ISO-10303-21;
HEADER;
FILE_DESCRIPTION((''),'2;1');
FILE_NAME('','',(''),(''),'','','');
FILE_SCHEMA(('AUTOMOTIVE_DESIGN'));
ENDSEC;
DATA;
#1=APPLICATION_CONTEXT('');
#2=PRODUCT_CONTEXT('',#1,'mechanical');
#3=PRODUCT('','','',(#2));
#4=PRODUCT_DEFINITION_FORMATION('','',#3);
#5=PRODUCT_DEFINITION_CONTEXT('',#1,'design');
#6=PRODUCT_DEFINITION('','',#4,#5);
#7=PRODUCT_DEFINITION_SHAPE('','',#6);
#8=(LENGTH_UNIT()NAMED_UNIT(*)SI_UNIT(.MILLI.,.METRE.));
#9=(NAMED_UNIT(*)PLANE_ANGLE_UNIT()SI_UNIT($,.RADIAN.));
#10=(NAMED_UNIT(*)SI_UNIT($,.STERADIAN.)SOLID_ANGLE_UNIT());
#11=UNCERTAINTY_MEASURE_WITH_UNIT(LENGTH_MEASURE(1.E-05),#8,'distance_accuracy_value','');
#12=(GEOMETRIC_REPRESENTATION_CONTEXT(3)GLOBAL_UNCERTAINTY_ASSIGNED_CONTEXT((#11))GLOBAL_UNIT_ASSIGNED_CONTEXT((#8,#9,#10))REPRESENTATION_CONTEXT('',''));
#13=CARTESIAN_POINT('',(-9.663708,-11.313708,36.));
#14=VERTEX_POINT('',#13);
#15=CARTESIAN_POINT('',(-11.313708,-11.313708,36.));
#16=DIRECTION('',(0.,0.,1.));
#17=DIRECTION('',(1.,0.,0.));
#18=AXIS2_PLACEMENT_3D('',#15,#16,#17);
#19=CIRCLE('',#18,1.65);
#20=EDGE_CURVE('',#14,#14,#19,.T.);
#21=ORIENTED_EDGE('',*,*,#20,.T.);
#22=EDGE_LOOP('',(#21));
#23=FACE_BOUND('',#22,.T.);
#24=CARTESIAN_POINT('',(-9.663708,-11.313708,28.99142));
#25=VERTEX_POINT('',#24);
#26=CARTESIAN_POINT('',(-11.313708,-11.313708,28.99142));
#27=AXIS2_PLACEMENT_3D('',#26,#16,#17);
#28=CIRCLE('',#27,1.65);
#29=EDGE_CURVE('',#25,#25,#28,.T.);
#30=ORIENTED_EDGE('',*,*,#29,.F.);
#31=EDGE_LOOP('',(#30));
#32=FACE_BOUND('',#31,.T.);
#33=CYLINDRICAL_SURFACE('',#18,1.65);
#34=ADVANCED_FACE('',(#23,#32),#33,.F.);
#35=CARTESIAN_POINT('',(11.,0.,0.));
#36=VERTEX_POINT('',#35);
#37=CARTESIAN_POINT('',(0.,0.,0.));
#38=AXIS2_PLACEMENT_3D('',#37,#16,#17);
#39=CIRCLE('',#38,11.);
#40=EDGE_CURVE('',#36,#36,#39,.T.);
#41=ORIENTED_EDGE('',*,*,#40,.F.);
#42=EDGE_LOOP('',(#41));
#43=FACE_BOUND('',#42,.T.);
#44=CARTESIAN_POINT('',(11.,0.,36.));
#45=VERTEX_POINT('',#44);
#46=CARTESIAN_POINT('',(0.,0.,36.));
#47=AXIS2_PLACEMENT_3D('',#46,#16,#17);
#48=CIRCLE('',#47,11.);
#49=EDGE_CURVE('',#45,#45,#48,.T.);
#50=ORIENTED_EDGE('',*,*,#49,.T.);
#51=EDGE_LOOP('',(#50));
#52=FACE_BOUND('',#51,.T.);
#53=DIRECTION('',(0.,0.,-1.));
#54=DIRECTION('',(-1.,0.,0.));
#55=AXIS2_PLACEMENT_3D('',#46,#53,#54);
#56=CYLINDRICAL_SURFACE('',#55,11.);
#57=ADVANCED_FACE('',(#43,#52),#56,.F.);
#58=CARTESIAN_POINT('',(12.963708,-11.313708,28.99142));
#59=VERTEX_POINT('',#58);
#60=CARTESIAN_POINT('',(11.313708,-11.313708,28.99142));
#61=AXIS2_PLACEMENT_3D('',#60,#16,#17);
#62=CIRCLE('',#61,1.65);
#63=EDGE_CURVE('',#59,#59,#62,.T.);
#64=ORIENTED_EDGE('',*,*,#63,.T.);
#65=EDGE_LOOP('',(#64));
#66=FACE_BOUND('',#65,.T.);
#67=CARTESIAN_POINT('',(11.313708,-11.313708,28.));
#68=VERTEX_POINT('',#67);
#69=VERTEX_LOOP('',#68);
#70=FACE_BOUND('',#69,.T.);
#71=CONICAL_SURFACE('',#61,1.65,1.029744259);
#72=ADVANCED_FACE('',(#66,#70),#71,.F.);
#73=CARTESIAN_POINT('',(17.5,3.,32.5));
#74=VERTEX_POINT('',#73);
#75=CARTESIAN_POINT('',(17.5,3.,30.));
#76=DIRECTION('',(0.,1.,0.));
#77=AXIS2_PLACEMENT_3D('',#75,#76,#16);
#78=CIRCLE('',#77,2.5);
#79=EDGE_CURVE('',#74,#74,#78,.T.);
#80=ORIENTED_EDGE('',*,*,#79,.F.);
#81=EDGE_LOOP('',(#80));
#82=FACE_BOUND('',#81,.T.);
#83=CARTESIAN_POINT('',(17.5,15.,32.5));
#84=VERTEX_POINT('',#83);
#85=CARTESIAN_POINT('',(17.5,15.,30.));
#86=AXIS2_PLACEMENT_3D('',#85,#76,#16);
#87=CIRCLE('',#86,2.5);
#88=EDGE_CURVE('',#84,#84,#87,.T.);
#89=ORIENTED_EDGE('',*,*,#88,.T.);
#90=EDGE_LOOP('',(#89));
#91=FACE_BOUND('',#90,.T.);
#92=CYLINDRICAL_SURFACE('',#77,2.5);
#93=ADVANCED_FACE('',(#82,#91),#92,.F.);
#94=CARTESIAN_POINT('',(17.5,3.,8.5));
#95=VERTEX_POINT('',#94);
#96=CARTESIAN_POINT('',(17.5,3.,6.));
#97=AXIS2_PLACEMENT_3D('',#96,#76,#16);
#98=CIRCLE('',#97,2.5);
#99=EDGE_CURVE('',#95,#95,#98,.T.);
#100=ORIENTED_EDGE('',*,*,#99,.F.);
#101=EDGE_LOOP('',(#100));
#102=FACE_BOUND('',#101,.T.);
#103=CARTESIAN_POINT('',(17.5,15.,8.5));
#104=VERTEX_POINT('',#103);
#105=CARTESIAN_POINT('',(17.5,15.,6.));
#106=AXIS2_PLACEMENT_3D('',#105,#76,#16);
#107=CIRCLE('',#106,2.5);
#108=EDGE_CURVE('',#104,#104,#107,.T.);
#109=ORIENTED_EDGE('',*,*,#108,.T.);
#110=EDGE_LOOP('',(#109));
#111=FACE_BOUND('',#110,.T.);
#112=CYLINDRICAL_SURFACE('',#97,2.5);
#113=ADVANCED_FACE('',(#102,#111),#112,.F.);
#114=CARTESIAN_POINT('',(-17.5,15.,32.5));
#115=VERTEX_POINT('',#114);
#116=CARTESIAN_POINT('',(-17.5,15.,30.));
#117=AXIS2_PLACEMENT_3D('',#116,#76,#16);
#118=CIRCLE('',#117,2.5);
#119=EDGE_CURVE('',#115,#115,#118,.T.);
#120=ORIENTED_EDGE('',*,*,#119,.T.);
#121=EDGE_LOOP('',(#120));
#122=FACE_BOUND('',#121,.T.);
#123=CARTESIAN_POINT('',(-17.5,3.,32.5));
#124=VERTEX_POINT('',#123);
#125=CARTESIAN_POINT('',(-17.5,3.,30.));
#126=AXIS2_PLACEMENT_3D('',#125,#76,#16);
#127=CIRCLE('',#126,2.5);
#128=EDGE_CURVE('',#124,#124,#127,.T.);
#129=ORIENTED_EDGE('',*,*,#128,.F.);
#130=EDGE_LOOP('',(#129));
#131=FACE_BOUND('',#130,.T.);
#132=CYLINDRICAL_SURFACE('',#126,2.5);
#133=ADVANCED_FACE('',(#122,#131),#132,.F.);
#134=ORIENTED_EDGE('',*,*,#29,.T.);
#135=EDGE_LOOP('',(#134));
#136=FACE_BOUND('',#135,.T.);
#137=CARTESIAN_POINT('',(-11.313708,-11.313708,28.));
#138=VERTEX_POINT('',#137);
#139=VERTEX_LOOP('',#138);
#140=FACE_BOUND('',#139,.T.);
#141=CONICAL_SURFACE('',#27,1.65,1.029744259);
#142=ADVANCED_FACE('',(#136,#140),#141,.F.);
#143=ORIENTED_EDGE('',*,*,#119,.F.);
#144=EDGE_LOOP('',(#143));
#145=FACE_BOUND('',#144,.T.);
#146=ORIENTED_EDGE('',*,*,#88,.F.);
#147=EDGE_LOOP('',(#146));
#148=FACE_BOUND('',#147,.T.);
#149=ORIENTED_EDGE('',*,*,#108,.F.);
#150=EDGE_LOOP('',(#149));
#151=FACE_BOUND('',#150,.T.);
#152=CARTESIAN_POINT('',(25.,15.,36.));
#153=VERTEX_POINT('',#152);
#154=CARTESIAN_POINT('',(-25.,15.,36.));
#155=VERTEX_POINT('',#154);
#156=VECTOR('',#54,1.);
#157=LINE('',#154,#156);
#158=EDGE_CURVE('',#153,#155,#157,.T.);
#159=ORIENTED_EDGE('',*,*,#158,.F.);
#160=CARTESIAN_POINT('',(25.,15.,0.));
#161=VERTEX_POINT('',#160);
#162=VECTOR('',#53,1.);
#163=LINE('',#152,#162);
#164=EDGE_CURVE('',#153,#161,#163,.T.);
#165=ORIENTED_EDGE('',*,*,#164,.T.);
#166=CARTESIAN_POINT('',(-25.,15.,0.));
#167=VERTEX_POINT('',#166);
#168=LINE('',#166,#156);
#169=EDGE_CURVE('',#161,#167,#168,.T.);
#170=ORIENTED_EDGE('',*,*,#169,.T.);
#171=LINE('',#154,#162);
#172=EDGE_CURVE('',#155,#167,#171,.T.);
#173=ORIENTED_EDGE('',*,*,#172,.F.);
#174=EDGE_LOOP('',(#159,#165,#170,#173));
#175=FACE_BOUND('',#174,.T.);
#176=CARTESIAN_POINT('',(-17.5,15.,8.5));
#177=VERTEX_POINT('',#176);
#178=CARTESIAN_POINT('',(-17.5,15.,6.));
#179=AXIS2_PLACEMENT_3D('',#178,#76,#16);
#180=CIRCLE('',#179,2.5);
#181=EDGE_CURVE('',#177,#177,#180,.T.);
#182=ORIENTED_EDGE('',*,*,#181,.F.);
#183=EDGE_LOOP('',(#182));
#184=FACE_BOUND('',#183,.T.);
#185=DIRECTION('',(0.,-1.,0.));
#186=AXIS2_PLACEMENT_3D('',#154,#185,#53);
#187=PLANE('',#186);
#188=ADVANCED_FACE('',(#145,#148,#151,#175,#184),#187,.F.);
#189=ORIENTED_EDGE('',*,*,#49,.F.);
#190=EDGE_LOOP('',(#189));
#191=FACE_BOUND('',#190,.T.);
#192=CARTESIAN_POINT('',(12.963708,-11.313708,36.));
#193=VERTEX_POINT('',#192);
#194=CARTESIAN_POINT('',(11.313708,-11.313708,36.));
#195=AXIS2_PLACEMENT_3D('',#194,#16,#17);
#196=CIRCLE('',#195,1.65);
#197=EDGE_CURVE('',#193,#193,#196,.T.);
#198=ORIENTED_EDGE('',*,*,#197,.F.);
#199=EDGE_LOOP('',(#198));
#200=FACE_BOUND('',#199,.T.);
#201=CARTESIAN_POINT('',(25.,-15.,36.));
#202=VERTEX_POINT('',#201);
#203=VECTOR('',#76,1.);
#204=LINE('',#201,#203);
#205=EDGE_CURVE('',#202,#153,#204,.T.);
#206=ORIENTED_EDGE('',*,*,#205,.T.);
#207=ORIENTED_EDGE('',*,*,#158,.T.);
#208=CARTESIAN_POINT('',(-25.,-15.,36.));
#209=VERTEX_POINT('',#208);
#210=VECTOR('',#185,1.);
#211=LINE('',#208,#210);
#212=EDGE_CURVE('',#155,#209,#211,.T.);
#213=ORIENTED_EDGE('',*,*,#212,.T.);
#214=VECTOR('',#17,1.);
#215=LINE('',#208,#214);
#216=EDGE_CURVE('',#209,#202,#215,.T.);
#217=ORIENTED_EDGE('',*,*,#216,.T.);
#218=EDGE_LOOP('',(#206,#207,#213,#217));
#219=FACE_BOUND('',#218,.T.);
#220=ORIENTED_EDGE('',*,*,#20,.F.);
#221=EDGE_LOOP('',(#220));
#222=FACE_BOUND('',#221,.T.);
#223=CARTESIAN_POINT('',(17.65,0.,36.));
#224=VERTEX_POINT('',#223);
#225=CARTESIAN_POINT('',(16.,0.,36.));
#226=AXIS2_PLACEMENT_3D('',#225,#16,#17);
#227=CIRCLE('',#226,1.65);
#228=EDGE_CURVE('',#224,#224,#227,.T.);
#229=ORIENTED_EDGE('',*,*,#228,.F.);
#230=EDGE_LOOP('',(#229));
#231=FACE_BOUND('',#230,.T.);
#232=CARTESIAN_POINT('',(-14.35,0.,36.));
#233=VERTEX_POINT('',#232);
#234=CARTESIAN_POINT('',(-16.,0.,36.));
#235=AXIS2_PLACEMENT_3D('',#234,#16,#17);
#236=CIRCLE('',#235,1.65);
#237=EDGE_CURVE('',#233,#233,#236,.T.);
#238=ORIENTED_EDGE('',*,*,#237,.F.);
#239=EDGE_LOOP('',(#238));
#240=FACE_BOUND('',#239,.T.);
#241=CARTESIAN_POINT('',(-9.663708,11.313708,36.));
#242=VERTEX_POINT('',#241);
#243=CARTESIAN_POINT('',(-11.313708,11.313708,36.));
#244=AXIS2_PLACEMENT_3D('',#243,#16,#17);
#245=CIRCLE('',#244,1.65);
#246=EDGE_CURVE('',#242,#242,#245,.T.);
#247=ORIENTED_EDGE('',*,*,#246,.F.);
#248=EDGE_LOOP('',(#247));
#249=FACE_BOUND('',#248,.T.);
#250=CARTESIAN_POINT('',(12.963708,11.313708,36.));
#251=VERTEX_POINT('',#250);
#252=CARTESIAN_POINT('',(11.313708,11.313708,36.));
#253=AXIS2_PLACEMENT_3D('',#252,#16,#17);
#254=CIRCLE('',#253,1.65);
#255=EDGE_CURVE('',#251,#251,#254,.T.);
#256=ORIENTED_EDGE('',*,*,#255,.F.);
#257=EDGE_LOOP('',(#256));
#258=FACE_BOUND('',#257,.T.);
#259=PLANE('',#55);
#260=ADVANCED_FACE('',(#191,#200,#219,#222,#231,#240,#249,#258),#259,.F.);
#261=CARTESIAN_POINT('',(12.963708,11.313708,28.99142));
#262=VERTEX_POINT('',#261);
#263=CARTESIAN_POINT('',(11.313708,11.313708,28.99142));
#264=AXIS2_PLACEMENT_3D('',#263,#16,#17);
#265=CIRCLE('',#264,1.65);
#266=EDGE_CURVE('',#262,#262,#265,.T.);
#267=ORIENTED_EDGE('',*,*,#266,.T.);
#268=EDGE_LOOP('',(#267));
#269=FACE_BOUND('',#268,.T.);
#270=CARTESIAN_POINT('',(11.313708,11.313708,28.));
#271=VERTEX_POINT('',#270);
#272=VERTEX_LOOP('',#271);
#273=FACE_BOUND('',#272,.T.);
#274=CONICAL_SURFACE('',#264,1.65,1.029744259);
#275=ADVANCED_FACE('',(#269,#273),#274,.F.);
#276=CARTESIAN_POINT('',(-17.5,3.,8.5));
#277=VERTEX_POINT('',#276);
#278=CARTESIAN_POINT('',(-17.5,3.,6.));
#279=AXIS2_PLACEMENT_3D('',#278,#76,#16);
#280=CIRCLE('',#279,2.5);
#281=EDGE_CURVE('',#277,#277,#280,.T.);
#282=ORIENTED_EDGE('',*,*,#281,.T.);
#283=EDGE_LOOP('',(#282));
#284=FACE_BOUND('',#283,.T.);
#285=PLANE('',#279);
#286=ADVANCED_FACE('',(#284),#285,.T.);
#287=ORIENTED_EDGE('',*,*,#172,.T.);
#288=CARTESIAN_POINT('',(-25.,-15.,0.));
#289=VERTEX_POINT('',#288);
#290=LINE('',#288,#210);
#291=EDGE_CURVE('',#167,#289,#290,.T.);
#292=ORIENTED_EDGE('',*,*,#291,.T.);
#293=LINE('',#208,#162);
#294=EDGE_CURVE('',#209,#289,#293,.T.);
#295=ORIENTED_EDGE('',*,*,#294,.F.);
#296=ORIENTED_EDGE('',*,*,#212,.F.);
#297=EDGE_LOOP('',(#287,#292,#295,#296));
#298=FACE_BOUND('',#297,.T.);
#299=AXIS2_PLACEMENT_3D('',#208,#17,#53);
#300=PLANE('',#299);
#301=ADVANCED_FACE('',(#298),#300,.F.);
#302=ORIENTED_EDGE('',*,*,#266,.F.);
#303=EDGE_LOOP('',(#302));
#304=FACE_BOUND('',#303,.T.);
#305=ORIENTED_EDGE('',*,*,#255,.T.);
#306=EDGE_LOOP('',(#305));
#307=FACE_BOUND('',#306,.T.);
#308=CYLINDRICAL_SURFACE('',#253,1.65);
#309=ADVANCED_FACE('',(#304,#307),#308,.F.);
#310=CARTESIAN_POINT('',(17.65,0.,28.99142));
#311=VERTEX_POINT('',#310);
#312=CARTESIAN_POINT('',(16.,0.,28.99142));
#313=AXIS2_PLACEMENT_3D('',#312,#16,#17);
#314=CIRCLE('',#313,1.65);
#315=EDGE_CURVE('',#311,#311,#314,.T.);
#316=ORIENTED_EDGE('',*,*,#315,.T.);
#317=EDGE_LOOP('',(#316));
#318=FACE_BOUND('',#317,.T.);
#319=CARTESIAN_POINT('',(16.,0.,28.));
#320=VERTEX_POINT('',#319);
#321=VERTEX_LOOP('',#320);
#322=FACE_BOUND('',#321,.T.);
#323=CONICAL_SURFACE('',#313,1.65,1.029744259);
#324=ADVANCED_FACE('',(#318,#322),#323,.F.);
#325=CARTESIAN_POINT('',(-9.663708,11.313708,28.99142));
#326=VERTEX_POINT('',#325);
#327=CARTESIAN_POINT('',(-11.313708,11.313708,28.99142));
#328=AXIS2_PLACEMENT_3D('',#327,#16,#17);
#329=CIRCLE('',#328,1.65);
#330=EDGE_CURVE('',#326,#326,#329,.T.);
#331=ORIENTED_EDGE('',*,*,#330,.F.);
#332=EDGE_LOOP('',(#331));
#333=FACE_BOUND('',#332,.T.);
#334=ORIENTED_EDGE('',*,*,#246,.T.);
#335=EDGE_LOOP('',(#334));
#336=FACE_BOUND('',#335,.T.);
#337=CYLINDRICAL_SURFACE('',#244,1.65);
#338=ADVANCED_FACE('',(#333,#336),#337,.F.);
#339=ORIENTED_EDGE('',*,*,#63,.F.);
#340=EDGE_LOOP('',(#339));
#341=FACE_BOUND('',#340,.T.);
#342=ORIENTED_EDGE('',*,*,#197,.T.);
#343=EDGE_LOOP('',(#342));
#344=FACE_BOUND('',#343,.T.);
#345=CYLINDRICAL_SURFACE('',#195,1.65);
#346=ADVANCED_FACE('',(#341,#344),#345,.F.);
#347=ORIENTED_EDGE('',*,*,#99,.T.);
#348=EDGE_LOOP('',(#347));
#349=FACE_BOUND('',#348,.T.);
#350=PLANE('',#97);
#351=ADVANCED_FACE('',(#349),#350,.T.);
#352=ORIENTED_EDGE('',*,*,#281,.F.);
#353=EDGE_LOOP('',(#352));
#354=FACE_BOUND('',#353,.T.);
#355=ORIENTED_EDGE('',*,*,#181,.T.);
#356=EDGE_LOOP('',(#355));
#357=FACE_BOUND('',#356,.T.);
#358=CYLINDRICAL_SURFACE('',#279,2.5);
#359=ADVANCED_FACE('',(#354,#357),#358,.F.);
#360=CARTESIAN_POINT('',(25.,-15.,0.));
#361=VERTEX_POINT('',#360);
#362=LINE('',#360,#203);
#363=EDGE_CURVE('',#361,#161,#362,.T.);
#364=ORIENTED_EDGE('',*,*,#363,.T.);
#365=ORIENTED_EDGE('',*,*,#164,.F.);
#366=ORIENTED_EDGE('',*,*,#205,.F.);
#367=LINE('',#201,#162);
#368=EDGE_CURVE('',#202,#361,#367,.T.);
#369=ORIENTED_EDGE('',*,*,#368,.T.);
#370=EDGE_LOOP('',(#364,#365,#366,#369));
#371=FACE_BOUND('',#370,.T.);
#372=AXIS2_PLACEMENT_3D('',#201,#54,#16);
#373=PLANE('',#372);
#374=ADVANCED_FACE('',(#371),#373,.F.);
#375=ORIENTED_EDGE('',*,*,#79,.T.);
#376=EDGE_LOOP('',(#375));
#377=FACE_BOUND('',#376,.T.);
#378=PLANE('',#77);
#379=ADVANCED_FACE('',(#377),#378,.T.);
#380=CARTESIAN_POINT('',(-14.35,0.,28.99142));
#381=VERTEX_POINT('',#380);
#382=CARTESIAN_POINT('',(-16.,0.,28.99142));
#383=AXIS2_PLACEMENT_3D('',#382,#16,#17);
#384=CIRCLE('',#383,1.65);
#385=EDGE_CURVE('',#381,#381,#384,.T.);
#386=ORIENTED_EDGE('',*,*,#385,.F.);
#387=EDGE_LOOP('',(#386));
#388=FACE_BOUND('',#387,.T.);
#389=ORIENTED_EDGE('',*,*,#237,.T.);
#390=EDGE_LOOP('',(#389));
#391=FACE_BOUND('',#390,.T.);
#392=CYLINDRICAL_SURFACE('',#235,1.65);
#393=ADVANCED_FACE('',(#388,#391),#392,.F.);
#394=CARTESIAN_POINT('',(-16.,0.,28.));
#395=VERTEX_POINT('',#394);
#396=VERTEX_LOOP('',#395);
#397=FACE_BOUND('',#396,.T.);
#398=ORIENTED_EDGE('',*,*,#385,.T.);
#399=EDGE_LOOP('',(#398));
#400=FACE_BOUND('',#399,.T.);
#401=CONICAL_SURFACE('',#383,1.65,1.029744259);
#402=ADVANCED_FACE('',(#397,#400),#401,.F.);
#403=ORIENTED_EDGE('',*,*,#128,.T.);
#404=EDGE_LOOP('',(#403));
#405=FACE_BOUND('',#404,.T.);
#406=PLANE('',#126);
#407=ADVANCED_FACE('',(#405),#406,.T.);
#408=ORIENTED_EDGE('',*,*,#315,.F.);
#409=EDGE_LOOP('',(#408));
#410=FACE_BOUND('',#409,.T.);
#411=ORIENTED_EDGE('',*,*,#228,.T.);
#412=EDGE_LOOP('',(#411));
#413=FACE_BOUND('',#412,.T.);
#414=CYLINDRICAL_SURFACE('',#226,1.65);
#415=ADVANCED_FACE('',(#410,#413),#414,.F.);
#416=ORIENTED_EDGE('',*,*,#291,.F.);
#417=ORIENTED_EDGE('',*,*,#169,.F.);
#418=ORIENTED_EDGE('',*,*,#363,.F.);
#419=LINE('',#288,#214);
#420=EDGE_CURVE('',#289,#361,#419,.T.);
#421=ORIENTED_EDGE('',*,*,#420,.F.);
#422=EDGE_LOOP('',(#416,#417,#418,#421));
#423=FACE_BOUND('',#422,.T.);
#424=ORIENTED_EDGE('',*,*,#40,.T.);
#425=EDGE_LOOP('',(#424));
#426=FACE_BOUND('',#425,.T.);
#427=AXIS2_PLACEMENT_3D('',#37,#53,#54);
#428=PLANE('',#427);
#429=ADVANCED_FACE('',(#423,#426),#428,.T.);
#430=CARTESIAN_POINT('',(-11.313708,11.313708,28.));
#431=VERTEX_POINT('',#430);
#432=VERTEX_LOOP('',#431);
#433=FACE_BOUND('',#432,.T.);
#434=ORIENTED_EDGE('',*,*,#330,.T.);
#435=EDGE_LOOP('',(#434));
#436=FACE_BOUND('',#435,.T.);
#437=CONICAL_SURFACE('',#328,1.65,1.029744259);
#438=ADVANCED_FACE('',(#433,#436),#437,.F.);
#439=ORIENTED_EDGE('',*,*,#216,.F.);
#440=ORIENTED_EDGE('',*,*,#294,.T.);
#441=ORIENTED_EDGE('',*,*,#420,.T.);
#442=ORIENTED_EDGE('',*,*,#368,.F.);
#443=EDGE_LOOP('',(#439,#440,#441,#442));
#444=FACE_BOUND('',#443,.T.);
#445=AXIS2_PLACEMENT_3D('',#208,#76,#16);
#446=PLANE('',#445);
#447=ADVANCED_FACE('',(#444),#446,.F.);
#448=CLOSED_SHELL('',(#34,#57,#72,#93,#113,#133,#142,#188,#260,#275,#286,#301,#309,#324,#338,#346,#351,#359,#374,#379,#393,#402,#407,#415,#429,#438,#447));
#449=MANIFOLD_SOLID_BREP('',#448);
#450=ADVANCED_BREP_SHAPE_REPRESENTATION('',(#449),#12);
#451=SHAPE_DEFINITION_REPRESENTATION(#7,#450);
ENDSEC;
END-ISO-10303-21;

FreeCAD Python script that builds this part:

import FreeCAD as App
import Part
import Sketcher
from FreeCAD import Vector


def add_polygon(sketch, points):
    """Adds a closed chain of lines whose ends are joined by coincident constraints."""
    first, n = sketch.GeometryCount, len(points)
    for a, b in zip(points, points[1:] + points[:1]):
        sketch.addGeometry(Part.LineSegment(App.Vector(*a, 0), App.Vector(*b, 0)), False)
    for i in range(n):
        sketch.addConstraint(Sketcher.Constraint("Coincident", first + i, 2, first + (i + 1) % n, 1))

doc = App.newDocument("Part")
params = doc.addObject("Spreadsheet::Sheet", "Params")
for row, (alias, value) in enumerate([
    ("sketch1_diameter", "22 mm"),
    ("sketch1_width", "50 mm"),
    ("sketch1_height", "30 mm"),
    ("pad1_length", "36 mm"),
    ("sketch2_diameter", "3.3 mm"),
    ("hole_diameter", "3.3 mm"),
    ("hole_depth", "7.00858 mm"),
    ("sketch3_diameter", "5 mm"),
    ("pocket1_length", "12 mm"),
], start=1):
    params.set(f"A{row}", alias)
    params.set(f"B{row}", "=" + value)
    params.setAlias(f"B{row}", alias)

body = doc.addObject("PartDesign::Body", "Body")

sketch1 = body.newObject("Sketcher::SketchObject", "Sketch")
sketch1.AttachmentSupport = (doc.getObject("XY_Plane"), [""])
sketch1.MapMode = "FlatFace"
add_polygon(sketch1, [(-25, 15), (-25, -15), (25, -15), (25, 15)])
sketch1.addGeometry(Part.Circle(Vector(0, 0, 0), Vector(0, 0, 1), 11), False)
sketch1.addConstraint(Sketcher.Constraint("Vertical", 0))
sketch1.addConstraint(Sketcher.Constraint("Horizontal", 1))
sketch1.addConstraint(Sketcher.Constraint("Vertical", 2))
sketch1.addConstraint(Sketcher.Constraint("Horizontal", 3))
sketch1.addConstraint(Sketcher.Constraint("Coincident", 4, 3, -1, 1))
sketch1.addConstraint(Sketcher.Constraint("Symmetric", 0, 2, 2, 2, -1, 1))
sketch1.addConstraint(Sketcher.Constraint("Diameter", 4, 22.0))
sketch1.addConstraint(Sketcher.Constraint("DistanceX", 1, 1, 1, 2, 50.0))
sketch1.addConstraint(Sketcher.Constraint("DistanceY", 0, 2, 0, 1, 30.0))
sketch1.setExpression("Constraints[10]", "Params.sketch1_diameter")
sketch1.setExpression("Constraints[11]", "Params.sketch1_width")
sketch1.setExpression("Constraints[12]", "Params.sketch1_height")
pad1 = body.newObject("PartDesign::Pad", "Pad")
pad1.Profile = sketch1
pad1.setExpression("Length", "Params.pad1_length")

sketch2 = body.newObject("Sketcher::SketchObject", "Sketch001")
sketch2.AttachmentSupport = (doc.getObject("XY_Plane"), [""])
sketch2.MapMode = "FlatFace"
sketch2.AttachmentOffset = App.Placement(Vector(0, 0, 36), App.Rotation())
sketch2.addGeometry(Part.Circle(Vector(11.3, 11.3, 0), Vector(0, 0, 1), 1.6), False)
sketch2.addGeometry(Part.Circle(Vector(-16, 0, 0), Vector(0, 0, 1), 1.6), False)
sketch2.addGeometry(Part.Circle(Vector(-11.3, 11.3, 0), Vector(0, 0, 1), 1.6), False)
sketch2.addGeometry(Part.Circle(Vector(-11.3, -11.3, 0), Vector(0, 0, 1), 1.6), False)
sketch2.addGeometry(Part.Circle(Vector(11.3, -11.3, 0), Vector(0, 0, 1), 1.6), False)
sketch2.addGeometry(Part.Circle(Vector(16, 0, 0), Vector(0, 0, 1), 1.6), False)
sketch2.addConstraint(Sketcher.Constraint("Equal", 0, 1))
sketch2.addConstraint(Sketcher.Constraint("Equal", 1, 2))
sketch2.addConstraint(Sketcher.Constraint("Equal", 2, 3))
sketch2.addConstraint(Sketcher.Constraint("Equal", 3, 4))
sketch2.addConstraint(Sketcher.Constraint("Equal", 4, 5))
sketch2.addConstraint(Sketcher.Constraint("Symmetric", 0, 3, 3, 3, -1, 1))
sketch2.addConstraint(Sketcher.Constraint("Symmetric", 2, 3, 4, 3, -1, 1))
sketch2.addConstraint(Sketcher.Constraint("Symmetric", 1, 3, 5, 3, -1, 1))
sketch2.addConstraint(Sketcher.Constraint("Symmetric", 0, 3, 2, 3, -2))
sketch2.addConstraint(Sketcher.Constraint("PointOnObject", 1, 3, -1))
sketch2.addConstraint(Sketcher.Constraint("Diameter", 0, 3.3))
sketch2.addConstraint(Sketcher.Constraint("DistanceX", 1, 3, -1, 1, 16.0))
sketch2.addConstraint(Sketcher.Constraint("DistanceX", -1, 1, 0, 3, 11.313708))
sketch2.addConstraint(Sketcher.Constraint("DistanceY", -1, 1, 0, 3, 11.313708))
sketch2.setExpression("Constraints[10]", "Params.sketch2_diameter")
doc.recompute()
hole = body.newObject("PartDesign::Hole", "Hole")
hole.Profile = sketch2
hole.ThreadType = "None"
hole.setExpression("Diameter", "Params.hole_diameter")
hole.DepthType = "Dimension"
hole.setExpression("Depth", "Params.hole_depth")
hole.DrillPoint = "Angled"
hole.DrillPointAngle = 118

sketch3 = body.newObject("Sketcher::SketchObject", "Sketch002")
sketch3.AttachmentSupport = (doc.getObject("XZ_Plane"), [""])
sketch3.MapMode = "FlatFace"
sketch3.AttachmentOffset = App.Placement(Vector(0, 0, -15), App.Rotation())
sketch3.addGeometry(Part.Circle(Vector(-17.5, 6, 0), Vector(0, 0, 1), 2.5), False)
sketch3.addGeometry(Part.Circle(Vector(17.5, 6, 0), Vector(0, 0, 1), 2.5), False)
sketch3.addGeometry(Part.Circle(Vector(17.5, 30, 0), Vector(0, 0, 1), 2.5), False)
sketch3.addGeometry(Part.Circle(Vector(-17.5, 30, 0), Vector(0, 0, 1), 2.5), False)
sketch3.addConstraint(Sketcher.Constraint("Equal", 0, 1))
sketch3.addConstraint(Sketcher.Constraint("Equal", 1, 2))
sketch3.addConstraint(Sketcher.Constraint("Equal", 2, 3))
sketch3.addConstraint(Sketcher.Constraint("Symmetric", 0, 3, 1, 3, -2))
sketch3.addConstraint(Sketcher.Constraint("Symmetric", 2, 3, 3, 3, -2))
sketch3.addConstraint(Sketcher.Constraint("Vertical", 1, 3, 2, 3))
sketch3.addConstraint(Sketcher.Constraint("Diameter", 0, 5.0))
sketch3.addConstraint(Sketcher.Constraint("DistanceY", -1, 1, 0, 3, 6.0))
sketch3.addConstraint(Sketcher.Constraint("DistanceY", -1, 1, 2, 3, 30.0))
sketch3.addConstraint(Sketcher.Constraint("DistanceX", 0, 3, 1, 3, 35.0))
sketch3.setExpression("Constraints[6]", "Params.sketch3_diameter")
pocket1 = body.newObject("PartDesign::Pocket", "Pocket")
pocket1.Profile = sketch3
pocket1.setExpression("Length", "Params.pocket1_length")
pocket1.Reversed = True

doc.recompute()
